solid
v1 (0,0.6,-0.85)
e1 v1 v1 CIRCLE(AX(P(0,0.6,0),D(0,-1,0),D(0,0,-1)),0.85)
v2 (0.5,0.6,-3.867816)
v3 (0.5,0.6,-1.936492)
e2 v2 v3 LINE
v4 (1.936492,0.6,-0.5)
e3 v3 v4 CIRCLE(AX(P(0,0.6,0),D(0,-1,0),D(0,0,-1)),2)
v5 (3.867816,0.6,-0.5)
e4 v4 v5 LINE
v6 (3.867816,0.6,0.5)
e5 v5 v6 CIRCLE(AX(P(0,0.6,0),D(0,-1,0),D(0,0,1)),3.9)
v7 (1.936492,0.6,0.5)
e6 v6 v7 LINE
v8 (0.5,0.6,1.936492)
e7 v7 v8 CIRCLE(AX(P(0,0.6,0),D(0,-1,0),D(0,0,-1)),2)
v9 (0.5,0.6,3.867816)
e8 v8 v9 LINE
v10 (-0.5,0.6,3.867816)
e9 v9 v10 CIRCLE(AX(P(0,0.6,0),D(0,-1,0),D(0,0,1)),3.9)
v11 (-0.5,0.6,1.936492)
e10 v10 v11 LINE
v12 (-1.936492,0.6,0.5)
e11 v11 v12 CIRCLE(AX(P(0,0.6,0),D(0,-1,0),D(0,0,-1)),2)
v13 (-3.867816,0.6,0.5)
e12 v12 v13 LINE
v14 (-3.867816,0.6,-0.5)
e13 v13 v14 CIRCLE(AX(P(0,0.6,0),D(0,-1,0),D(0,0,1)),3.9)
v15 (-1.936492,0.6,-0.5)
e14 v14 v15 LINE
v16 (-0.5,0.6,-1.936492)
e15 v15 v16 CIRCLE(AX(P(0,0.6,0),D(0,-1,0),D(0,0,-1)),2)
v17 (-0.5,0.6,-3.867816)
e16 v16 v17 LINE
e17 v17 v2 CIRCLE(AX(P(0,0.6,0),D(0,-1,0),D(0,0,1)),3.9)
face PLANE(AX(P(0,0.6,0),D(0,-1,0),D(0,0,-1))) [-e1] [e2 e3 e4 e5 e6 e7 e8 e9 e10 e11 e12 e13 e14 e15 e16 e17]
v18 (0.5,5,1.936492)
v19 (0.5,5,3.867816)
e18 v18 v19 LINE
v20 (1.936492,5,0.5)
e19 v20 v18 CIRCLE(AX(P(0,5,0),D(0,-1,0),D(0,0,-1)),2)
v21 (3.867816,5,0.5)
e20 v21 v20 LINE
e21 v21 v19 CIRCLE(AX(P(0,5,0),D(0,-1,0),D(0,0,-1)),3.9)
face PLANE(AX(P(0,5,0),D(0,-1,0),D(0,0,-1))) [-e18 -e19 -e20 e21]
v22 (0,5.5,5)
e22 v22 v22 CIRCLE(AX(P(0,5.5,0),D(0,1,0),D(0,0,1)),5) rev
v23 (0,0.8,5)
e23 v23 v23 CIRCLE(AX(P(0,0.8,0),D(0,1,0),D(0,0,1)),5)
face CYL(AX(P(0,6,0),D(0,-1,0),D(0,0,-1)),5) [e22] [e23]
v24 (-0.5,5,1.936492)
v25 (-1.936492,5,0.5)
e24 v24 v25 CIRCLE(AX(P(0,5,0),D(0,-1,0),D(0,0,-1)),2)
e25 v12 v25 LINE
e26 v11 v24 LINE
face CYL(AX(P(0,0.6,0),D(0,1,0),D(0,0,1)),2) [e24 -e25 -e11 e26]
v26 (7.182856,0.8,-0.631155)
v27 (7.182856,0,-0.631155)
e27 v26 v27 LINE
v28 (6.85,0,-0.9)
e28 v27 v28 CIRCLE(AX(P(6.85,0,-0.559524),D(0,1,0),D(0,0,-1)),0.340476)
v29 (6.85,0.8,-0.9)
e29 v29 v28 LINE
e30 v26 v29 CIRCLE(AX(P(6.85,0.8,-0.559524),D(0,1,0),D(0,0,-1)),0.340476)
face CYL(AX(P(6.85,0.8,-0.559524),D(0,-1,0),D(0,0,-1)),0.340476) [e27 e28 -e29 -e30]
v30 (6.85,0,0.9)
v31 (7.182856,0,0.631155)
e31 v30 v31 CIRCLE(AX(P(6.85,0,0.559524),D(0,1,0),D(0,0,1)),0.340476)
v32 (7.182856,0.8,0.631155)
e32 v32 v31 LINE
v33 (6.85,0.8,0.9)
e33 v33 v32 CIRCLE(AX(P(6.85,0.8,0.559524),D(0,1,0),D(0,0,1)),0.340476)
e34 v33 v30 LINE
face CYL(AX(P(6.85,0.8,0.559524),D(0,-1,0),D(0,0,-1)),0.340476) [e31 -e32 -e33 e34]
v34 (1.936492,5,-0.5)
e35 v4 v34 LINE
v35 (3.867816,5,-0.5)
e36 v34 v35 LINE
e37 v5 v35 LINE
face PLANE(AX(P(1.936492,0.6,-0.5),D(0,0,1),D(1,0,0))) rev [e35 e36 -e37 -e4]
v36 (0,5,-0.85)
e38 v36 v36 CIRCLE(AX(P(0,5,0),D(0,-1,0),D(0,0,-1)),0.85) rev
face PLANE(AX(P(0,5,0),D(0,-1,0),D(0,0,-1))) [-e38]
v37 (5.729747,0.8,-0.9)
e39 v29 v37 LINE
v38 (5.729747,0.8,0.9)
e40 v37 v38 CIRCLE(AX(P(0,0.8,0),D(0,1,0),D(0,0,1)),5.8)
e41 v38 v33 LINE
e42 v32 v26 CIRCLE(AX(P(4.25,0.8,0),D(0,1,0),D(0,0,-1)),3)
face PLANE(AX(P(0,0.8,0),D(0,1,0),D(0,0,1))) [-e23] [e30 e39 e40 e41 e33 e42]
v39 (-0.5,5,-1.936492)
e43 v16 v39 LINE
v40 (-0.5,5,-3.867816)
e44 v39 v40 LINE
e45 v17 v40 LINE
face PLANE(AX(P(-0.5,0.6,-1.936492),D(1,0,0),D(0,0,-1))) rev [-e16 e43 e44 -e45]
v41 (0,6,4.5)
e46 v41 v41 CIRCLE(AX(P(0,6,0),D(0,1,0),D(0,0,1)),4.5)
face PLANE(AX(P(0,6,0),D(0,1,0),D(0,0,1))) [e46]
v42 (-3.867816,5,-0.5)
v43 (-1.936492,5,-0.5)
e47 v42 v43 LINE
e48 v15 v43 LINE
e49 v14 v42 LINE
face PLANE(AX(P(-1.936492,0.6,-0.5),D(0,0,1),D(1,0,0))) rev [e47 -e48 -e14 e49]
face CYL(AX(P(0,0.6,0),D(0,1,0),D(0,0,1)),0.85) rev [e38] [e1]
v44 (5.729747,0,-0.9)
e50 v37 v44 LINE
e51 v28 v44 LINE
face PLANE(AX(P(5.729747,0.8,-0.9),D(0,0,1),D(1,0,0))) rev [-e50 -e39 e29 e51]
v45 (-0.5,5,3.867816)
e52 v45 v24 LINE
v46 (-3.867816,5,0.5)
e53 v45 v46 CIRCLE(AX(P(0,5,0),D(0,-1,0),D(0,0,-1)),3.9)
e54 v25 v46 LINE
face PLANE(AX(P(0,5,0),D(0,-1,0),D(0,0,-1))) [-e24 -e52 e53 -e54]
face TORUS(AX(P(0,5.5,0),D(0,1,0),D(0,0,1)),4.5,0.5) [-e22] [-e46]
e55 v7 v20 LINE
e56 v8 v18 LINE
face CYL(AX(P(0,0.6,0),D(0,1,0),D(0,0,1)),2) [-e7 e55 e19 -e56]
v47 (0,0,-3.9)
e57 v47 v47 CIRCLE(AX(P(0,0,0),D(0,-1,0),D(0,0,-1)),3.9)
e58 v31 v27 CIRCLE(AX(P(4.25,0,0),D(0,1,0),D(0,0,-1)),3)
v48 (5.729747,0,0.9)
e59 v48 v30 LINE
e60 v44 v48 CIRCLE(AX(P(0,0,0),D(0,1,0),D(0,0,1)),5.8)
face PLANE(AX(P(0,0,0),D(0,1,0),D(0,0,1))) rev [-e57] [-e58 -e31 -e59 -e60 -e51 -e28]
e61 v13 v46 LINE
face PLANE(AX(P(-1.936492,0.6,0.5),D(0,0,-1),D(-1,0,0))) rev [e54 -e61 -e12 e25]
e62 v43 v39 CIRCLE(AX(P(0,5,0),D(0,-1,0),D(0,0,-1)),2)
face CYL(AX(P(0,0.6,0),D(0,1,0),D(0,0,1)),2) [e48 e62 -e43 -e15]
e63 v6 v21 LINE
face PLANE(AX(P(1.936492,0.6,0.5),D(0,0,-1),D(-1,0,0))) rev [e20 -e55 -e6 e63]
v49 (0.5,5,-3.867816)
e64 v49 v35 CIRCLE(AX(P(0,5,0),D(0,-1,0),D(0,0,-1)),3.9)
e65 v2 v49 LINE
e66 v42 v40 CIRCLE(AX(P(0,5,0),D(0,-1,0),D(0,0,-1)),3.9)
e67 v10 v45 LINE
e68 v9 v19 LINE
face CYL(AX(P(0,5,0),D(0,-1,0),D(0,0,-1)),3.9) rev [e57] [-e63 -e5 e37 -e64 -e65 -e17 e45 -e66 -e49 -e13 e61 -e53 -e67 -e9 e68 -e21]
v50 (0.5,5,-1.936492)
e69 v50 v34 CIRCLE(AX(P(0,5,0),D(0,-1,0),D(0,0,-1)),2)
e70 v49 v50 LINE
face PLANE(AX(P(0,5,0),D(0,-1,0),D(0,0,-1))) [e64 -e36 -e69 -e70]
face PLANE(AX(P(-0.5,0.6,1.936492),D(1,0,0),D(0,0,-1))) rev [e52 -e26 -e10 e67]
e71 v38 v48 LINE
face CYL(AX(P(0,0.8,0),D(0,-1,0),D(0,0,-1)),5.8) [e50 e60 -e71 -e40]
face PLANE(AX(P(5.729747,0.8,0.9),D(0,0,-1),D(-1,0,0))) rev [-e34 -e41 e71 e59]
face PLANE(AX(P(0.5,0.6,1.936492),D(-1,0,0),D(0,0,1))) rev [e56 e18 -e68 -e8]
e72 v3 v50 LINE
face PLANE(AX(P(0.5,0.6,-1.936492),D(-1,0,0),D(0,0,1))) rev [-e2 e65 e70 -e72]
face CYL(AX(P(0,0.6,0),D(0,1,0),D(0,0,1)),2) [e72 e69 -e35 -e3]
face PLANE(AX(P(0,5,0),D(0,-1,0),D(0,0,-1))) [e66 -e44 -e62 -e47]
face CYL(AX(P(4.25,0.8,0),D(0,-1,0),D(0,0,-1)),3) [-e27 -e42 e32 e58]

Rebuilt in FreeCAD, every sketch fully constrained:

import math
import FreeCAD as App
import Part
import Sketcher

V = App.Vector
Q = App.Units.Quantity


def edges_at(feature, points):
    """Names of the edges that pass closest to the given points."""
    edges = feature.Shape.Edges
    near = lambda p: min(range(len(edges)), key=lambda i: edges[i].distToShape(Part.Vertex(*p))[0])
    return sorted({f"Edge{near(p) + 1}" for p in points})

doc = App.newDocument("Part")
params = doc.addObject("Spreadsheet::Sheet", "Params")
for row, (alias, value) in enumerate([
    ("sketch1_diameter", "10 mm"),
    ("sketch1_radius", "3 mm"),
    ("sketch1_radius2", "5.8 mm"),
    ("pad1_length", "0.8 mm"),
    ("sketch2_diameter", "10 mm"),
    ("pad2_length", "6 mm"),
    ("fillet_radius", "0.5 mm"),
    ("sketch3_diameter", "7.8 mm"),
    ("pocket1_length", "5 mm"),
    ("sketch4_radius", "2 mm"),
    ("sketch4_diameter", "1.7 mm"),
    ("sketch4_radius2", "3.9 mm"),
    ("pad3_length", "4.4 mm"),
], start=1):
    params.set(f"A{row}", alias)
    params.set(f"B{row}", "=" + value)
    params.setAlias(f"B{row}", alias)

body = doc.addObject("PartDesign::Body", "Body")

sketch1 = doc.addObject("Sketcher::SketchObject", "Sketch")
body.addObject(sketch1)
sketch1.AttachmentSupport = (doc.XZ_Plane, [""])
sketch1.MapMode = "FlatFace"
sketch1.addGeometry([
    Part.LineSegment(V(6.85, -0.9, 0), V(5.73, -0.9, 0)),
    Part.ArcOfCircle(Part.Circle(V(0, 0, 0), V(0, 0, 1), 5.8), math.radians(9), math.radians(351)),
    Part.LineSegment(V(5.73, 0.9, 0), V(6.85, 0.9, 0)),
    Part.ArcOfCircle(Part.Circle(V(6.85, 0.56, 0), V(0, 0, 1), 0.34), math.radians(12), math.radians(90)),
    Part.ArcOfCircle(Part.Circle(V(4.25, 0, 0), V(0, 0, 1), 3), math.radians(-12), math.radians(12)),
    Part.ArcOfCircle(Part.Circle(V(6.85, -0.56, 0), V(0, 0, 1), 0.34), math.radians(-90), math.radians(-12)),
    Part.Circle(V(0, 0, 0), V(0, 0, 1), 5),
], False)
sketch1.addConstraint([
    Sketcher.Constraint("Coincident", 0, 2, 1, 2),
    Sketcher.Constraint("Coincident", 1, 1, 2, 1),
    Sketcher.Constraint("Tangent", 2, 2, 3, 2),
    Sketcher.Constraint("Tangent", 3, 1, 4, 2),
    Sketcher.Constraint("Tangent", 4, 1, 5, 2),
    Sketcher.Constraint("Tangent", 5, 1, 0, 1),
    Sketcher.Constraint("Horizontal", 0),
    Sketcher.Constraint("Horizontal", 2),
    Sketcher.Constraint("Coincident", 1, 3, -1, 1),
    Sketcher.Constraint("Coincident", 6, 3, -1, 1),
    Sketcher.Constraint("Equal", 3, 5),
    Sketcher.Constraint("Symmetric", 3, 3, 5, 3, -1),
    Sketcher.Constraint("Diameter", 6, Q("10 mm")),
    Sketcher.Constraint("Radius", 4, Q("3 mm")),
    Sketcher.Constraint("Radius", 1, Q("5.8 mm")),
    Sketcher.Constraint("DistanceY", 0, 2, -1, 1, Q("0.9 mm")),
    Sketcher.Constraint("DistanceX", 4, 3, 3, 3, Q("2.6 mm")),
    Sketcher.Constraint("DistanceX", -1, 1, 3, 3, Q("6.85 mm")),
])
sketch1.setExpression("Constraints[12]", "Params.sketch1_diameter")
sketch1.setExpression("Constraints[13]", "Params.sketch1_radius")
sketch1.setExpression("Constraints[14]", "Params.sketch1_radius2")
pad1 = doc.addObject("PartDesign::Pad", "Pad")
body.addObject(pad1)
pad1.Profile = sketch1
pad1.setExpression("Length", "Params.pad1_length")
pad1.Reversed = True

sketch2 = doc.addObject("Sketcher::SketchObject", "Sketch001")
body.addObject(sketch2)
sketch2.AttachmentSupport = (doc.XZ_Plane, [""])
sketch2.MapMode = "FlatFace"
sketch2.addGeometry(Part.Circle(V(0, 0, 0), V(0, 0, 1), 5), False)
sketch2.addConstraint([
    Sketcher.Constraint("Coincident", 0, 3, -1, 1),
    Sketcher.Constraint("Diameter", 0, Q("10 mm")),
])
sketch2.setExpression("Constraints[1]", "Params.sketch2_diameter")
pad2 = doc.addObject("PartDesign::Pad", "Pad001")
body.addObject(pad2)
pad2.Profile = sketch2
pad2.setExpression("Length", "Params.pad2_length")
pad2.Reversed = True
doc.recompute()

fillet = doc.addObject("PartDesign::Fillet", "Fillet")
body.addObject(fillet)
fillet.Base = (pad2, edges_at(pad2, [(0, 6, -5)]))
fillet.setExpression("Radius", "Params.fillet_radius")

sketch3 = doc.addObject("Sketcher::SketchObject", "Sketch002")
body.addObject(sketch3)
sketch3.AttachmentSupport = (doc.XZ_Plane, [""])
sketch3.MapMode = "FlatFace"
sketch3.addGeometry(Part.Circle(V(0, 0, 0), V(0, 0, 1), 3.9), False)
sketch3.addConstraint([
    Sketcher.Constraint("Coincident", 0, 3, -1, 1),
    Sketcher.Constraint("Diameter", 0, Q("7.8 mm")),
])
sketch3.setExpression("Constraints[1]", "Params.sketch3_diameter")
pocket1 = doc.addObject("PartDesign::Pocket", "Pocket")
body.addObject(pocket1)
pocket1.Profile = sketch3
pocket1.setExpression("Length", "Params.pocket1_length")

sketch4 = doc.addObject("Sketcher::SketchObject", "Sketch003")
body.addObject(sketch4)
sketch4.AttachmentSupport = (doc.XZ_Plane, [""])
sketch4.MapMode = "FlatFace"
sketch4.AttachmentOffset = App.Placement(V(0, 0, -0.6), App.Rotation())
sketch4.addGeometry([
    Part.LineSegment(V(-0.5, 3.9, 0), V(-0.5, 1.9, 0)),
    Part.ArcOfCircle(Part.Circle(V(0, 0, 0), V(0, 0, 1), 2), math.radians(104), math.radians(166)),
    Part.LineSegment(V(-1.9, 0.5, 0), V(-3.9, 0.5, 0)),
    Part.ArcOfCircle(Part.Circle(V(0, 0, 0), V(0, 0, 1), 3.9), math.radians(172.63), math.radians(187.37)),
    Part.LineSegment(V(-3.9, -0.5, 0), V(-1.9, -0.5, 0)),
    Part.ArcOfCircle(Part.Circle(V(0, 0, 0), V(0, 0, 1), 2), math.radians(-166), math.radians(-104)),
    Part.LineSegment(V(-0.5, -1.9, 0), V(-0.5, -3.9, 0)),
    Part.ArcOfCircle(Part.Circle(V(0, 0, 0), V(0, 0, 1), 3.9), math.radians(-97.37), math.radians(-82.63)),
    Part.LineSegment(V(0.5, -3.9, 0), V(0.5, -1.9, 0)),
    Part.ArcOfCircle(Part.Circle(V(0, 0, 0), V(0, 0, 1), 2), math.radians(-76), math.radians(-14)),
    Part.LineSegment(V(1.9, -0.5, 0), V(3.9, -0.5, 0)),
    Part.ArcOfCircle(Part.Circle(V(0, 0, 0), V(0, 0, 1), 3.9), math.radians(-7.37), math.radians(7.37)),
    Part.LineSegment(V(3.9, 0.5, 0), V(1.9, 0.5, 0)),
    Part.ArcOfCircle(Part.Circle(V(0, 0, 0), V(0, 0, 1), 2), math.radians(14), math.radians(76)),
    Part.LineSegment(V(0.5, 1.9, 0), V(0.5, 3.9, 0)),
    Part.ArcOfCircle(Part.Circle(V(0, 0, 0), V(0, 0, 1), 3.9), math.radians(82.63), math.radians(97.37)),
    Part.Circle(V(0, 0, 0), V(0, 0, 1), 0.8),
], False)
sketch4.addConstraint([
    Sketcher.Constraint("Coincident", 0, 2, 1, 1),
    Sketcher.Constraint("Coincident", 1, 2, 2, 1),
    Sketcher.Constraint("Coincident", 2, 2, 3, 1),
    Sketcher.Constraint("Coincident", 3, 2, 4, 1),
    Sketcher.Constraint("Coincident", 4, 2, 5, 1),
    Sketcher.Constraint("Coincident", 5, 2, 6, 1),
    Sketcher.Constraint("Coincident", 6, 2, 7, 1),
    Sketcher.Constraint("Coincident", 7, 2, 8, 1),
    Sketcher.Constraint("Coincident", 8, 2, 9, 1),
    Sketcher.Constraint("Coincident", 9, 2, 10, 1),
    Sketcher.Constraint("Coincident", 10, 2, 11, 1),
    Sketcher.Constraint("Coincident", 11, 2, 12, 1),
    Sketcher.Constraint("Coincident", 12, 2, 13, 1),
    Sketcher.Constraint("Coincident", 13, 2, 14, 1),
    Sketcher.Constraint("Coincident", 14, 2, 15, 1),
    Sketcher.Constraint("Coincident", 15, 2, 0, 1),
    Sketcher.Constraint("Vertical", 0),
    Sketcher.Constraint("Horizontal", 2),
    Sketcher.Constraint("Horizontal", 4),
    Sketcher.Constraint("Vertical", 6),
    Sketcher.Constraint("Vertical", 8),
    Sketcher.Constraint("Horizontal", 10),
    Sketcher.Constraint("Horizontal", 12),
    Sketcher.Constraint("Vertical", 14),
    Sketcher.Constraint("Coincident", 1, 3, -1, 1),
    Sketcher.Constraint("Coincident", 3, 3, -1, 1),
    Sketcher.Constraint("Coincident", 5, 3, -1, 1),
    Sketcher.Constraint("Coincident", 7, 3, -1, 1),
    Sketcher.Constraint("Coincident", 9, 3, -1, 1),
    Sketcher.Constraint("Coincident", 11, 3, -1, 1),
    Sketcher.Constraint("Coincident", 13, 3, -1, 1),
    Sketcher.Constraint("Coincident", 15, 3, -1, 1),
    Sketcher.Constraint("Coincident", 16, 3, -1, 1),
    Sketcher.Constraint("Equal", 1, 5),
    Sketcher.Constraint("Equal", 3, 7),
    Sketcher.Constraint("Equal", 5, 9),
    Sketcher.Constraint("Equal", 7, 11),
    Sketcher.Constraint("Equal", 9, 13),
    Sketcher.Constraint("Equal", 11, 15),
    Sketcher.Constraint("Horizontal", 6, 2, 7, 2),
    Sketcher.Constraint("Horizontal", 4, 2, 9, 2),
    Sketcher.Constraint("Horizontal", 2, 2, 11, 2),
    Sketcher.Constraint("Horizontal", 0, 2, 13, 2),
    Sketcher.Constraint("Vertical", 2, 2, 3, 2),
    Sketcher.Constraint("Vertical", 0, 2, 5, 2),
    Sketcher.Constraint("Equal", 12, 0),
    Sketcher.Constraint("Radius", 1, Q("2 mm")),
    Sketcher.Constraint("Diameter", 16, Q("1.7 mm")),
    Sketcher.Constraint("Radius", 3, Q("3.9 mm")),
    Sketcher.Constraint("DistanceY", 3, 2, 2, 2, Q("1 mm")),
])
sketch4.setExpression("Constraints[46]", "Params.sketch4_radius")
sketch4.setExpression("Constraints[47]", "Params.sketch4_diameter")
sketch4.setExpression("Constraints[48]", "Params.sketch4_radius2")
pad3 = doc.addObject("PartDesign::Pad", "Pad002")
body.addObject(pad3)
pad3.Profile = sketch4
pad3.setExpression("Length", "Params.pad3_length")
pad3.Reversed = True

doc.recompute()
